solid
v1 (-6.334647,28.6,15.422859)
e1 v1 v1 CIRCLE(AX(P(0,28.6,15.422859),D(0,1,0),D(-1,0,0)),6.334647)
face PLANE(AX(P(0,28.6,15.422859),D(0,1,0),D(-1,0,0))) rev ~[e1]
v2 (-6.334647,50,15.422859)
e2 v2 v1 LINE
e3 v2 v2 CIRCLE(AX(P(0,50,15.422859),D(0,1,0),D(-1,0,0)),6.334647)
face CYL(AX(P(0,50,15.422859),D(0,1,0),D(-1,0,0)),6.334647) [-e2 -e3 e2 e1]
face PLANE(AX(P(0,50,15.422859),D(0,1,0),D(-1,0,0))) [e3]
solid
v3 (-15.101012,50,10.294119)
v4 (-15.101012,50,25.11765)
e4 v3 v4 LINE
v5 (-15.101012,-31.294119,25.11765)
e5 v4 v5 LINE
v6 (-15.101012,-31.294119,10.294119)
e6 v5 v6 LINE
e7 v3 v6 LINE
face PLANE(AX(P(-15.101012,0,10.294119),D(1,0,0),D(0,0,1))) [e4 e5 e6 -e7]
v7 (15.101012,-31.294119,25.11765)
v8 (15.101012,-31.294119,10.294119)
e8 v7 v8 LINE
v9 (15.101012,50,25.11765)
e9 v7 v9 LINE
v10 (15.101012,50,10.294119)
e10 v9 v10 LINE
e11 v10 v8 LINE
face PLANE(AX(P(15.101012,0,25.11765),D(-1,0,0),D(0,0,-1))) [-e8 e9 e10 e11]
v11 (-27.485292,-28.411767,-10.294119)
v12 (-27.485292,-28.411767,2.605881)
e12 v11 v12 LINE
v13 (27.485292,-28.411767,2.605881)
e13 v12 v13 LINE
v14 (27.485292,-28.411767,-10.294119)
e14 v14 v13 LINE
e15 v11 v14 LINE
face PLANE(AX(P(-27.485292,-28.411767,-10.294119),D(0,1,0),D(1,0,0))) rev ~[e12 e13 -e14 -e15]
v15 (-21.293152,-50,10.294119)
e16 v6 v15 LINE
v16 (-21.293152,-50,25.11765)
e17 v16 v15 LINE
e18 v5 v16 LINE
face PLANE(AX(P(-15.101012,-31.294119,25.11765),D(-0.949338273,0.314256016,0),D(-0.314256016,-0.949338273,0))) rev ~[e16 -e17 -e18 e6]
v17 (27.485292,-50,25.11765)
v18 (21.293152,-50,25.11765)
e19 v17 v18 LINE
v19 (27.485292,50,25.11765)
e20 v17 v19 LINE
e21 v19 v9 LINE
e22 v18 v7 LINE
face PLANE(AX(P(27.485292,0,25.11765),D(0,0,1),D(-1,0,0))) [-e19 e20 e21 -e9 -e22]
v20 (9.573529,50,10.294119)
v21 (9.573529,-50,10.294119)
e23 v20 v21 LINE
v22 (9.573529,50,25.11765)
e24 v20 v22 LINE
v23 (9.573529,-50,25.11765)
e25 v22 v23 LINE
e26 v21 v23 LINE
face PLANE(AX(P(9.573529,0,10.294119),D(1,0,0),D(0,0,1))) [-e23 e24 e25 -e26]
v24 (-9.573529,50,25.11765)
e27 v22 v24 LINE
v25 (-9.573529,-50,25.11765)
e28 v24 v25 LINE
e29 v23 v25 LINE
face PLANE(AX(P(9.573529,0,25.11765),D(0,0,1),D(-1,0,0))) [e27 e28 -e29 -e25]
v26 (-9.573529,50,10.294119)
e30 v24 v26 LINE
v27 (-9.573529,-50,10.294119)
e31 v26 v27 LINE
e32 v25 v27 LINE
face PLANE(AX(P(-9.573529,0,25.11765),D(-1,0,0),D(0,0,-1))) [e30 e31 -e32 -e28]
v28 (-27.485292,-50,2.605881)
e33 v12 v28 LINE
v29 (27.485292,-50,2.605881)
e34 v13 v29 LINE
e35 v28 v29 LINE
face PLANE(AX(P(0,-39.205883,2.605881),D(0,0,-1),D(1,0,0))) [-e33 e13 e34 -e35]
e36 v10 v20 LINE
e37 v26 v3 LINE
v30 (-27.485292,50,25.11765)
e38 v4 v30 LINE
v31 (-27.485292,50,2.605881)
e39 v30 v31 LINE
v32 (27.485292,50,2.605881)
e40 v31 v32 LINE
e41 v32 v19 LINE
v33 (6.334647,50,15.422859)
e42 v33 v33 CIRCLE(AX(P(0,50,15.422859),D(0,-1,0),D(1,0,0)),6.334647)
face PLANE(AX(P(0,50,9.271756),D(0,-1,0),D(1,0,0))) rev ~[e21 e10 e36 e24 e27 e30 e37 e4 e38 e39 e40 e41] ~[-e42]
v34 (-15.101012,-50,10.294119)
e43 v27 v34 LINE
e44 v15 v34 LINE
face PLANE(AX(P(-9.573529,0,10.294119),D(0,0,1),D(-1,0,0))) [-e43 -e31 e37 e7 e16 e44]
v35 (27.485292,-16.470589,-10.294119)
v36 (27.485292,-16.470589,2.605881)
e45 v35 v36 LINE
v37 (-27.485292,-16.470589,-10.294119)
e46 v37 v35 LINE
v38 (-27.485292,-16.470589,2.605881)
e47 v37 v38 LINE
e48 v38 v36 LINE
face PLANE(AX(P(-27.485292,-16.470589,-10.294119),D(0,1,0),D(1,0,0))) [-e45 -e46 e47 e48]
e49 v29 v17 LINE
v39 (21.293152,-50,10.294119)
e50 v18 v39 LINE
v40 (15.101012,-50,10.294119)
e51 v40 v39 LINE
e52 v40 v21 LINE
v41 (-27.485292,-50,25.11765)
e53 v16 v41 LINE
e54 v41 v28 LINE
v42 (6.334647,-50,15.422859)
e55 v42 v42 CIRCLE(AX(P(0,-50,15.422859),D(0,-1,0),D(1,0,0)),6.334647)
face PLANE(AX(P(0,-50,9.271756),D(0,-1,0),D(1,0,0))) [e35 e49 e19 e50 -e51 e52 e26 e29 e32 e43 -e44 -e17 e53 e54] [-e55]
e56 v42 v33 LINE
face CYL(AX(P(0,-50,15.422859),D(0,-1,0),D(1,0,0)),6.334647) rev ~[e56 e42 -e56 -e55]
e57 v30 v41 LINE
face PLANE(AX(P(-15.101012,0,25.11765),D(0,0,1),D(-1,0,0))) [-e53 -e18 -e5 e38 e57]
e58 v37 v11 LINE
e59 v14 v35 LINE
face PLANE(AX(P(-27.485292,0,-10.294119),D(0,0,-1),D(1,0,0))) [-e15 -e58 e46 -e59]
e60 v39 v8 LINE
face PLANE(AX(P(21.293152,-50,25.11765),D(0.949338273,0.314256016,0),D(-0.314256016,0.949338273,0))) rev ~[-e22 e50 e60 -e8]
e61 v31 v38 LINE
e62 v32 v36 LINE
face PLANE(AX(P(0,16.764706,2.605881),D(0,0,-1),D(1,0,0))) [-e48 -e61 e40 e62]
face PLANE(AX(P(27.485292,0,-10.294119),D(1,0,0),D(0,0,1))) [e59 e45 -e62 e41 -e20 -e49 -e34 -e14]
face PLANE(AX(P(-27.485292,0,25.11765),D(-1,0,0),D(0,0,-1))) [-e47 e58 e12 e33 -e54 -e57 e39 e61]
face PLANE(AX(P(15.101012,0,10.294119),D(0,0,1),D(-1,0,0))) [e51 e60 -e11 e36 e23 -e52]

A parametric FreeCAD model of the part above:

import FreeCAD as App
import Part
import Sketcher


def add_polygon(sketch, points):
    """Adds a closed chain of lines whose ends are joined by coincident constraints."""
    first, n = sketch.GeometryCount, len(points)
    for a, b in zip(points, points[1:] + points[:1]):
        sketch.addGeometry(Part.LineSegment(App.Vector(*a, 0), App.Vector(*b, 0)), False)
    for i in range(n):
        sketch.addConstraint(Sketcher.Constraint("Coincident", first + i, 2, first + (i + 1) % n, 1))

doc = App.newDocument("Part")
params = doc.addObject("Spreadsheet::Sheet", "Params")
for row, (alias, value) in enumerate([
    ("pad1_length", "100 mm"),
    ("pocket1_length", "12.9 mm"),
    ("pocket2_length", "14.823531 mm"),
    ("pocket3_length", "114.6 mm"),
    ("pad2_length", "21.4 mm"),
], start=1):
    params.set(f"A{row}", alias)
    params.set(f"B{row}", "=" + value)
    params.setAlias(f"B{row}", alias)

body = doc.addObject("PartDesign::Body", "Body")

# Sketch on XZ plane
sketch1 = body.newObject("Sketcher::SketchObject", "Sketch")
sketch1.AttachmentSupport = (doc.getObject("XZ_Plane"), [""])
sketch1.MapMode = "FlatFace"
add_polygon(sketch1, [(15, 25), (15, 10), (10, 10), (10, 25), (-10, 25), (-10, 10), (-15, 10), (-15, 25), (-27, 25), (-27, -10), (27, -10), (27, 25)])  # lines 0-11
sketch1.addConstraint([
    Sketcher.Constraint("Vertical", 0),
    Sketcher.Constraint("Horizontal", 1),
    Sketcher.Constraint("Vertical", 2),
    Sketcher.Constraint("Horizontal", 3),
    Sketcher.Constraint("Vertical", 4),
    Sketcher.Constraint("Horizontal", 5),
    Sketcher.Constraint("Vertical", 6),
    Sketcher.Constraint("Horizontal", 7),
    Sketcher.Constraint("Vertical", 8),
    Sketcher.Constraint("Horizontal", 9),
    Sketcher.Constraint("Vertical", 10),
    Sketcher.Constraint("Horizontal", 11),
    Sketcher.Constraint("Symmetric", 1, 2, 4, 2, -2),
    Sketcher.Constraint("Symmetric", 7, 2, 10, 2, -2),
    Sketcher.Constraint("Horizontal", 3, 2, 6, 2),
    Sketcher.Constraint("Equal", 1, 5),
    Sketcher.Constraint("DistanceX", 3, 2, 3, 1, 19.147059),
    Sketcher.Constraint("DistanceX", 7, 2, 7, 1, 12.384281),
    Sketcher.Constraint("DistanceY", 0, 2, 0, 1, 14.823531),
    Sketcher.Constraint("DistanceY", 8, 2, 8, 1, 35.411769),
    Sketcher.Constraint("DistanceX", 1, 2, 1, 1, 5.527482),
    Sketcher.Constraint("DistanceY", -1, 1, 0, 2, 10.294119),
])
pad1 = body.newObject("PartDesign::Pad", "Pad")
pad1.Profile = sketch1
pad1.setExpression("Length", "Params.pad1_length")
pad1.Midplane = True

# Sketch on XY plane
sketch2 = body.newObject("Sketcher::SketchObject", "Sketch001")
sketch2.AttachmentSupport = (doc.getObject("XY_Plane"), [""])
sketch2.MapMode = "FlatFace"
sketch2.AttachmentOffset = App.Placement(App.Vector(0, 0, -10.294119), App.Rotation())
add_polygon(sketch2, [(-27, -50), (-27, -28), (27, -28), (27, -50)])  # lines 0-3
add_polygon(sketch2, [(-27, -16), (-27, 50), (27, 50), (27, -16)])  # lines 4-7
sketch2.addConstraint([
    Sketcher.Constraint("Vertical", 0),
    Sketcher.Constraint("Horizontal", 1),
    Sketcher.Constraint("Vertical", 2),
    Sketcher.Constraint("Horizontal", 3),
    Sketcher.Constraint("Vertical", 4),
    Sketcher.Constraint("Horizontal", 5),
    Sketcher.Constraint("Vertical", 6),
    Sketcher.Constraint("Horizontal", 7),
    Sketcher.Constraint("Symmetric", 2, 2, 4, 2, -1, 1),
    Sketcher.Constraint("Vertical", 3, 2, 4, 2),
    Sketcher.Constraint("Vertical", 2, 2, 5, 2),
    Sketcher.Constraint("DistanceY", 2, 2, -1, 1, 50.0),
    Sketcher.Constraint("DistanceY", 4, 1, 4, 2, 66.470589),
    Sketcher.Constraint("DistanceX", 1, 1, 1, 2, 54.970585),
    Sketcher.Constraint("DistanceY", 0, 1, 0, 2, 21.588233),
])
pocket1 = body.newObject("PartDesign::Pocket", "Pocket")
pocket1.Profile = sketch2
pocket1.setExpression("Length", "Params.pocket1_length")
pocket1.Reversed = True

# Sketch on XY plane
sketch3 = body.newObject("Sketcher::SketchObject", "Sketch002")
sketch3.AttachmentSupport = (doc.getObject("XY_Plane"), [""])
sketch3.MapMode = "FlatFace"
sketch3.AttachmentOffset = App.Placement(App.Vector(0, 0, 25.11765), App.Rotation())
add_polygon(sketch3, [(-15, -31), (-21, -50), (-15, -50)])  # lines 0-2
add_polygon(sketch3, [(15, -50), (21, -50), (15, -31)])  # lines 3-5
sketch3.addConstraint([
    Sketcher.Constraint("Horizontal", 1),
    Sketcher.Constraint("Vertical", 2),
    Sketcher.Constraint("Horizontal", 3),
    Sketcher.Constraint("Vertical", 5),
    Sketcher.Constraint("Symmetric", 0, 2, 3, 2, -2),
    Sketcher.Constraint("Symmetric", 2, 2, 4, 2, -2),
    Sketcher.Constraint("DistanceY", 0, 2, -1, 1, 50.0),
    Sketcher.Constraint("DistanceX", 1, 1, 1, 2, 6.19214),
    Sketcher.Constraint("DistanceY", 2, 1, 2, 2, 18.705881),
    Sketcher.Constraint("DistanceX", 1, 2, -1, 1, 15.101012),
])
pocket2 = body.newObject("PartDesign::Pocket", "Pocket001")
pocket2.Profile = sketch3
pocket2.setExpression("Length", "Params.pocket2_length")

# Sketch on XZ plane
sketch4 = body.newObject("Sketcher::SketchObject", "Sketch003")
sketch4.AttachmentSupport = (doc.getObject("XZ_Plane"), [""])
sketch4.MapMode = "FlatFace"
sketch4.AttachmentOffset = App.Placement(App.Vector(0, 0, 50), App.Rotation())
sketch4.addGeometry(Part.Circle(App.Vector(0, 15, 0), App.Vector(0, 0, 1), 6), False)
sketch4.addConstraint([
    Sketcher.Constraint("PointOnObject", 0, 3, -2),
    Sketcher.Constraint("Diameter", 0, 12.669293),
    Sketcher.Constraint("DistanceY", -1, 1, 0, 3, 15.422859),
])
pocket3 = body.newObject("PartDesign::Pocket", "Pocket002")
pocket3.Profile = sketch4
pocket3.setExpression("Length", "Params.pocket3_length")
body2 = doc.addObject("PartDesign::Body", "Body001")

# Sketch on XZ plane
sketch5 = body2.newObject("Sketcher::SketchObject", "Sketch004")
sketch5.AttachmentSupport = (doc.getObject("XZ_Plane001"), [""])
sketch5.MapMode = "FlatFace"
sketch5.AttachmentOffset = App.Placement(App.Vector(0, 0, -50), App.Rotation())
sketch5.addGeometry(Part.Circle(App.Vector(0, 15, 0), App.Vector(0, 0, 1), 6), False)
sketch5.addConstraint([
    Sketcher.Constraint("PointOnObject", 0, 3, -2),
    Sketcher.Constraint("Diameter", 0, 12.669293),
    Sketcher.Constraint("DistanceY", -1, 1, 0, 3, 15.422859),
])
pad2 = body2.newObject("PartDesign::Pad", "Pad001")
pad2.Profile = sketch5
pad2.setExpression("Length", "Params.pad2_length")

doc.recompute()
